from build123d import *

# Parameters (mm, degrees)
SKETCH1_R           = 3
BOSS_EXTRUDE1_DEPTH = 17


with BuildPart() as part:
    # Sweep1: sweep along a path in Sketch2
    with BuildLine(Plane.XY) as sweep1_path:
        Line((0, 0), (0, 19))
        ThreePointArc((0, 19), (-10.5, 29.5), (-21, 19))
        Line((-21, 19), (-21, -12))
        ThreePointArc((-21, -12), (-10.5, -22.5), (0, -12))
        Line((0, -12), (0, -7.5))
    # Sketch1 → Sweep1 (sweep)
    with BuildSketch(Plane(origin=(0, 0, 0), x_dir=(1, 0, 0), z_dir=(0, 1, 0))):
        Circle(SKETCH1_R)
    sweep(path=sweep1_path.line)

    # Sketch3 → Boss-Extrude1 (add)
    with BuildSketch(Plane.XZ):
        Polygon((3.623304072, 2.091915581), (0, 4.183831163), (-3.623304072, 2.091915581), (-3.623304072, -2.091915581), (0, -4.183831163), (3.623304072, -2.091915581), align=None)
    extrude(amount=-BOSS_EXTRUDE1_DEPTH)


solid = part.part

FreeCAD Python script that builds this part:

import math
import FreeCAD as App
import Part
import Sketcher
Q = App.Units.Quantity


def add_polygon(sketch, points):
    """Adds a closed chain of lines whose ends are joined by coincident constraints."""
    first, n = sketch.GeometryCount, len(points)
    for a, b in zip(points, points[1:] + points[:1]):
        sketch.addGeometry(Part.LineSegment(App.Vector(*a, 0), App.Vector(*b, 0)), False)
    for i in range(n):
        sketch.addConstraint(Sketcher.Constraint("Coincident", first + i, 2, first + (i + 1) % n, 1))

doc = App.newDocument("Part")
body = doc.addObject("PartDesign::Body", "Body")

# Sketch on XZ plane
sketch1 = body.newObject("Sketcher::SketchObject", "Sketch")
sketch1.AttachmentSupport = (doc.getObject("XZ_Plane"), [""])
sketch1.MapMode = "FlatFace"
sketch1.addGeometry(Part.Circle(App.Vector(0, 0, 0), App.Vector(0, 0, 1), 3), False)
sketch1.addConstraint([
    Sketcher.Constraint("Coincident", 0, 3, -1, 1),
    Sketcher.Constraint("Diameter", 0, 6.0),
])

# Sketch on XY plane
sketch2 = body.newObject("Sketcher::SketchObject", "Sketch001")
sketch2.AttachmentSupport = (doc.getObject("XY_Plane"), [""])
sketch2.MapMode = "FlatFace"
sketch2.addGeometry([
    Part.LineSegment(App.Vector(0, 0, 0), App.Vector(0, 19, 0)),  # 0
    Part.ArcOfCircle(Part.Circle(App.Vector(-10.5, 19, 0), App.Vector(0, 0, 1), 10.5), math.radians(0), math.radians(180)),  # 1
    Part.LineSegment(App.Vector(-21, 19, 0), App.Vector(-21, -12, 0)),  # 2
    Part.ArcOfCircle(Part.Circle(App.Vector(-10.5, -12, 0), App.Vector(0, 0, 1), 10.5), math.radians(180), math.radians(360)),  # 3
    Part.LineSegment(App.Vector(0, -12, 0), App.Vector(0, -7.5, 0)),  # 4
], False)
sketch2.addConstraint([
    Sketcher.Constraint("Tangent", 0, 2, 1, 1),
    Sketcher.Constraint("Tangent", 1, 2, 2, 1),
    Sketcher.Constraint("Tangent", 2, 2, 3, 1),
    Sketcher.Constraint("Tangent", 3, 2, 4, 1),
    Sketcher.Constraint("Vertical", 0),
    Sketcher.Constraint("Vertical", 2),
    Sketcher.Constraint("Vertical", 4),
    Sketcher.Constraint("Coincident", 0, 1, -1, 1),
    Sketcher.Constraint("Equal", 1, 3),
    Sketcher.Constraint("Radius", 1, 10.5),
    Sketcher.Constraint("DistanceY", 0, 1, 0, 2, 19.0),
    Sketcher.Constraint("DistanceY", 2, 2, 2, 1, 31.0),
    Sketcher.Constraint("DistanceY", 4, 1, 4, 2, 4.5),
])
doc.recompute()

additivepipe = body.newObject("PartDesign::AdditivePipe", "AdditivePipe")
additivepipe.Profile = sketch1
additivepipe.Spine = (sketch2, ["Edge1", "Edge2", "Edge3", "Edge4", "Edge5"])

# Sketch on XZ plane
sketch3 = body.newObject("Sketcher::SketchObject", "Sketch002")
sketch3.AttachmentSupport = (doc.getObject("XZ_Plane"), [""])
sketch3.MapMode = "FlatFace"
add_polygon(sketch3, [(3.623304, 2.091916), (0, 4.183831), (-3.623304, 2.091916), (-3.623304, -2.091916), (0, -4.183831), (3.623304, -2.091916)])  # lines 0-5
sketch3.addConstraint([
    Sketcher.Constraint("Vertical", 2),
    Sketcher.Constraint("Vertical", 5),
    Sketcher.Constraint("Symmetric", 0, 2, 3, 2, -1, 1),
    Sketcher.Constraint("Symmetric", 1, 2, 4, 2, -1, 1),
    Sketcher.Constraint("PointOnObject", 0, 2, -2),
    Sketcher.Constraint("Parallel", 0, 3),
    Sketcher.Constraint("Horizontal", 2, 2, 4, 2),
    Sketcher.Constraint("Angle", 0, Q("150 deg")),
    Sketcher.Constraint("DistanceY", 2, 2, 2, 1, 4.183831),
    Sketcher.Constraint("Distance", 0, 4.183831),
])
pad1 = body.newObject("PartDesign::Pad", "Pad")
pad1.Profile = sketch3
pad1.Length = 17
pad1.Reversed = True

doc.recompute()
